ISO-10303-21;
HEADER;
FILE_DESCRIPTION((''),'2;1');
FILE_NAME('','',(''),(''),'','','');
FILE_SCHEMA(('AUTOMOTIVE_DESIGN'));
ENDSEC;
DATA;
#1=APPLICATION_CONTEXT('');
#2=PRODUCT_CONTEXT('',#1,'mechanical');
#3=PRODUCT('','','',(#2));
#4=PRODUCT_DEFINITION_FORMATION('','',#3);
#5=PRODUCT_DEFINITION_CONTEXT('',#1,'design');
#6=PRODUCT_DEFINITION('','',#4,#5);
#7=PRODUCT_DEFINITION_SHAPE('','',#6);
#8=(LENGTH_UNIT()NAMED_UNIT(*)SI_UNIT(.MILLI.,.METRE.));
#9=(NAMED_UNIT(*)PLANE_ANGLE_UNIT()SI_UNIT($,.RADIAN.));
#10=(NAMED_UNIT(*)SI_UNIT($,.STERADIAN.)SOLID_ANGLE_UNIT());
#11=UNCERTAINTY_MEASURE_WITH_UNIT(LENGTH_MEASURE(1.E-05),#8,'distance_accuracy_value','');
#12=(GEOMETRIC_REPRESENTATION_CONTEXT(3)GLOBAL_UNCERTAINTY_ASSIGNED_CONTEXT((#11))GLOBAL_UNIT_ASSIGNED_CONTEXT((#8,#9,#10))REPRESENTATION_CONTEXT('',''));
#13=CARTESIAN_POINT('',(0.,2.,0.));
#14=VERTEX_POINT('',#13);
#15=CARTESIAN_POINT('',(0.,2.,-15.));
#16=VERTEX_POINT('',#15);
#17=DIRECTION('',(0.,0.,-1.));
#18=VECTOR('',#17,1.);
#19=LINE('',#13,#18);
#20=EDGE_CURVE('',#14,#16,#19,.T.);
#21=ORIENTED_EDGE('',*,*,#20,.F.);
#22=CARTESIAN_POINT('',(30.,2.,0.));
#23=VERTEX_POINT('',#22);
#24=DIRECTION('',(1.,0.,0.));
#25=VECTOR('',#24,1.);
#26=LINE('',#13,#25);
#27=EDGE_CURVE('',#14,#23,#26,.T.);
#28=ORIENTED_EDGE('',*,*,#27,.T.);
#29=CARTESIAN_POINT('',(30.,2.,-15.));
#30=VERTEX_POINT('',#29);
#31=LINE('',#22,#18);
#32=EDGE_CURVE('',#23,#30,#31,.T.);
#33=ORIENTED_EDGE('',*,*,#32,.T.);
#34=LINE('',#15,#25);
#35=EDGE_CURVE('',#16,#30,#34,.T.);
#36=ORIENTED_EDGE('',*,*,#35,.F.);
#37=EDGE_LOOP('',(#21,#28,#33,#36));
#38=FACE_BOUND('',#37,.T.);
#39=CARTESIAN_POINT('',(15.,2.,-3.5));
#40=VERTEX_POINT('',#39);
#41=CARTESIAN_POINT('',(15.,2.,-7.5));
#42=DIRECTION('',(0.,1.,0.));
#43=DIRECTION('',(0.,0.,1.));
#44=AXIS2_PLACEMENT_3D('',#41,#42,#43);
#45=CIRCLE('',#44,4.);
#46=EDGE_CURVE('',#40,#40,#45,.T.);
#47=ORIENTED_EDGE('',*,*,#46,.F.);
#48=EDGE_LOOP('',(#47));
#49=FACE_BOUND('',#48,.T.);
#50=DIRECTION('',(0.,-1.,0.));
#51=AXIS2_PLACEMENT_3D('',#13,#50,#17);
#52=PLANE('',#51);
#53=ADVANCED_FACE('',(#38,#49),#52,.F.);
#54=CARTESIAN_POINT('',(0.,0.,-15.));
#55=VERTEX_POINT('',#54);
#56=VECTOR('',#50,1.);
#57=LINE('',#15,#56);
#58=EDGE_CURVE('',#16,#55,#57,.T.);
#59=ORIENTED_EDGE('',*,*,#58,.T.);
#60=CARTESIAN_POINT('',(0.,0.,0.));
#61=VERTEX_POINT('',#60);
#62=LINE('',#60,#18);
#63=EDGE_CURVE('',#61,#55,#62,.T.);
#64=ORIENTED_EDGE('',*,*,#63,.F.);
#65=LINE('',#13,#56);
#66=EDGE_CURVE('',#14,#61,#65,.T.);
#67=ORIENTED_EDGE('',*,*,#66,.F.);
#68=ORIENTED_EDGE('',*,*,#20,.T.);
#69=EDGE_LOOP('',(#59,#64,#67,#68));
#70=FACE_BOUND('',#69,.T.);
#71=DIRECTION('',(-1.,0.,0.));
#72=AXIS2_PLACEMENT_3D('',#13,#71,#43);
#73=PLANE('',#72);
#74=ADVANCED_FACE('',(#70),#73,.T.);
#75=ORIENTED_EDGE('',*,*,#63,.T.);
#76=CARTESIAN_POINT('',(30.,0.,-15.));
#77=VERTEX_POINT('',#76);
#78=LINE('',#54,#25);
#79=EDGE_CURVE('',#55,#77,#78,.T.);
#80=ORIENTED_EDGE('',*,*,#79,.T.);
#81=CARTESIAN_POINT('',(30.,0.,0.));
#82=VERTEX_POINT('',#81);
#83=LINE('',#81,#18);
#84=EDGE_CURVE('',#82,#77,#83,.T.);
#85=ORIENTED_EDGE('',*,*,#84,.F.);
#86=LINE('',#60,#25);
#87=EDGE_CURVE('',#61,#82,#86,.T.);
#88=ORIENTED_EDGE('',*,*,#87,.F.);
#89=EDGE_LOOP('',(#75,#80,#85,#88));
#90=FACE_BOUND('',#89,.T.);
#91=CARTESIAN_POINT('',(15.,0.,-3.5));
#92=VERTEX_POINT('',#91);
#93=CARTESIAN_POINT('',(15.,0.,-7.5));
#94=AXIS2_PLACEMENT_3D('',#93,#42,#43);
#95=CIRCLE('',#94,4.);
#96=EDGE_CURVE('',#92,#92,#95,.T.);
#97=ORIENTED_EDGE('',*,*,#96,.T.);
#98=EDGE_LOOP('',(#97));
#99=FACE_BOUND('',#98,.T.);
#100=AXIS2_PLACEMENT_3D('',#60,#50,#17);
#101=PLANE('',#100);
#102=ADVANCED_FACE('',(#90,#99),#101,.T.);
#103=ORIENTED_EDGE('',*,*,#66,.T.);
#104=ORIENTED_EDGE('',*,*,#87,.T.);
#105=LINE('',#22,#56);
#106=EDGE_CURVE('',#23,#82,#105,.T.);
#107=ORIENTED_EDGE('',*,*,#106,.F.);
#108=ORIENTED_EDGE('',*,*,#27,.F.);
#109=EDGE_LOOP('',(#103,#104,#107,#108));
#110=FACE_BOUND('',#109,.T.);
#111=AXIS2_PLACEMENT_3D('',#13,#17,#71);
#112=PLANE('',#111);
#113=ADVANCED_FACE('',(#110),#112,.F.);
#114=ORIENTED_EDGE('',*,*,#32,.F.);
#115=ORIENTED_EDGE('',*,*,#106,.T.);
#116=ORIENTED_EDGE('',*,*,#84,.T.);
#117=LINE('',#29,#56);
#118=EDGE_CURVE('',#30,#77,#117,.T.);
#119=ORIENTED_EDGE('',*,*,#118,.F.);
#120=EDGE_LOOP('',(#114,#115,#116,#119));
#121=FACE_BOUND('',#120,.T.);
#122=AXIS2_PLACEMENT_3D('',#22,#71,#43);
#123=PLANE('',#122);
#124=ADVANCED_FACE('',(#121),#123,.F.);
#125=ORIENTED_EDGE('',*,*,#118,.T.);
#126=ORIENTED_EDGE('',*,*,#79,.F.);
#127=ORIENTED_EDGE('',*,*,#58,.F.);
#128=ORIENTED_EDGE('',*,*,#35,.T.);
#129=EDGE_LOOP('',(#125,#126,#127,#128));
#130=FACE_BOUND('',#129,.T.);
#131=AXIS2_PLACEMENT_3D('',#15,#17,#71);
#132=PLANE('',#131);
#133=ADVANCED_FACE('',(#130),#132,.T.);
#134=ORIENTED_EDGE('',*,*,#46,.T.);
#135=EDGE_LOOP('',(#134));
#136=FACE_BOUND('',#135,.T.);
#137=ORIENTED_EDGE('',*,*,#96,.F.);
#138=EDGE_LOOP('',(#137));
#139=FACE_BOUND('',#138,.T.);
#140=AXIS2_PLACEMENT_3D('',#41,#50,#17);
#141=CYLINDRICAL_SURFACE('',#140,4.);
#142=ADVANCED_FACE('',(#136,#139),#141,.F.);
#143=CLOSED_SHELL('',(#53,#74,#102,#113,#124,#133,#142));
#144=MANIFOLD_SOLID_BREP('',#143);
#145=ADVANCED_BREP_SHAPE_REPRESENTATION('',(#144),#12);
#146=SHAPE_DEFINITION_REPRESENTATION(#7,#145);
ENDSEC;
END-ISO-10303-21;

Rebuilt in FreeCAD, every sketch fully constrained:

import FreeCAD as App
import Part
import Sketcher

V = App.Vector


def add_polygon(sketch, points):
    """Adds a closed chain of lines whose ends are joined by coincident constraints."""
    first, n = sketch.GeometryCount, len(points)
    for a, b in zip(points, points[1:] + points[:1]):
        sketch.addGeometry(Part.LineSegment(App.Vector(*a, 0), App.Vector(*b, 0)), False)
    for i in range(n):
        sketch.addConstraint(Sketcher.Constraint("Coincident", first + i, 2, first + (i + 1) % n, 1))

doc = App.newDocument("Part")
body = doc.addObject("PartDesign::Body", "Body")

# Sketch on XZ plane
sketch1 = doc.addObject("Sketcher::SketchObject", "Sketch")
body.addObject(sketch1)
sketch1.AttachmentSupport = (doc.XZ_Plane, [""])
sketch1.MapMode = "FlatFace"
add_polygon(sketch1, [(0, -15), (0, 0), (30, 0), (30, -15)])  # lines 0-3
sketch1.addGeometry(Part.Circle(V(15, -7.5, 0), V(0, 0, 1), 4), False)  # 4
sketch1.addConstraint([
    Sketcher.Constraint("Vertical", 0),
    Sketcher.Constraint("Horizontal", 1),
    Sketcher.Constraint("Vertical", 2),
    Sketcher.Constraint("Horizontal", 3),
    Sketcher.Constraint("Coincident", 0, 2, -1, 1),
    Sketcher.Constraint("Diameter", 4, 8.0),
    Sketcher.Constraint("DistanceX", 1, 1, 1, 2, 30.0),
    Sketcher.Constraint("DistanceY", 0, 1, 0, 2, 15.0),
    Sketcher.Constraint("DistanceX", -1, 1, 4, 3, 15.0),
    Sketcher.Constraint("DistanceY", 4, 3, -1, 1, 7.5),
])
pad1 = doc.addObject("PartDesign::Pad", "Pad")
body.addObject(pad1)
pad1.Profile = sketch1
pad1.Length = 2
pad1.Reversed = True

doc.recompute()
